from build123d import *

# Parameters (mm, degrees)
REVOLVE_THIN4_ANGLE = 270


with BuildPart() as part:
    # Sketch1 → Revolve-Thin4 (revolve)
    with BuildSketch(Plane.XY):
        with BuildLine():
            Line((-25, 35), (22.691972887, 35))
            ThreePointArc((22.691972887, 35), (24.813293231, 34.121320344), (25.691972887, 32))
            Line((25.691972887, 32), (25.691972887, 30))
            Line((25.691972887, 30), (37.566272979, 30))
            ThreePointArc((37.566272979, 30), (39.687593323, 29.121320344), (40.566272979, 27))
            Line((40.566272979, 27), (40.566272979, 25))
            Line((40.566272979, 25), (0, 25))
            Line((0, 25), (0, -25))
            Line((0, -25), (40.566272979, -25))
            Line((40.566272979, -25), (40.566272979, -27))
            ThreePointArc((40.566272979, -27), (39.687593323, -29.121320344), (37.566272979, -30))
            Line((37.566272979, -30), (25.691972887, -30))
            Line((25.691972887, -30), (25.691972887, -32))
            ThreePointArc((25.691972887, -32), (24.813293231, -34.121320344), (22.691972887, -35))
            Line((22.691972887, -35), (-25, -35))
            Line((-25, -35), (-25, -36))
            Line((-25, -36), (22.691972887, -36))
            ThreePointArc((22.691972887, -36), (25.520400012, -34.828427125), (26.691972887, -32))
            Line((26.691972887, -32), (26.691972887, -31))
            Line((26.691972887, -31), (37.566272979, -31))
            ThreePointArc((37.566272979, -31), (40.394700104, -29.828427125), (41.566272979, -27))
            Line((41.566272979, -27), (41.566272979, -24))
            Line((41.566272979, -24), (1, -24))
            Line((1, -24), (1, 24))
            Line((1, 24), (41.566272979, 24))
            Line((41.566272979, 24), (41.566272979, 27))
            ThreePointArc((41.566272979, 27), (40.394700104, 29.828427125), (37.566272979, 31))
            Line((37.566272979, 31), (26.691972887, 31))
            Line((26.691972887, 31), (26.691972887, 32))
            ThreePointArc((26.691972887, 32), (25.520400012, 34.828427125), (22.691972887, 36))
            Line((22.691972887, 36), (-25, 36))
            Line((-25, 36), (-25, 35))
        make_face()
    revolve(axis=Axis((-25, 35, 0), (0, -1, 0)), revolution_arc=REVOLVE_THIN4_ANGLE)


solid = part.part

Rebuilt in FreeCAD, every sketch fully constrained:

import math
import FreeCAD as App
import Part
import Sketcher

doc = App.newDocument("Part")
body = doc.addObject("PartDesign::Body", "Body")

# Sketch on XY plane
sketch1 = body.newObject("Sketcher::SketchObject", "Sketch")
sketch1.AttachmentSupport = (doc.getObject("XY_Plane"), [""])
sketch1.MapMode = "FlatFace"
sketch1.addGeometry([
    Part.LineSegment(App.Vector(-25, 35, 0), App.Vector(22.691973, 35, 0)),  # 0
    Part.ArcOfCircle(Part.Circle(App.Vector(22.691973, 32, 0), App.Vector(0, 0, 1), 3), math.radians(0), math.radians(90)),  # 1
    Part.LineSegment(App.Vector(25.691973, 32, 0), App.Vector(25.691973, 30, 0)),  # 2
    Part.LineSegment(App.Vector(25.691973, 30, 0), App.Vector(37.566273, 30, 0)),  # 3
    Part.ArcOfCircle(Part.Circle(App.Vector(37.566273, 27, 0), App.Vector(0, 0, 1), 3), math.radians(0), math.radians(90)),  # 4
    Part.LineSegment(App.Vector(40.566273, 27, 0), App.Vector(40.566273, 25, 0)),  # 5
    Part.LineSegment(App.Vector(40.566273, 25, 0), App.Vector(0, 25, 0)),  # 6
    Part.LineSegment(App.Vector(0, 25, 0), App.Vector(0, -25, 0)),  # 7
    Part.LineSegment(App.Vector(0, -25, 0), App.Vector(40.566273, -25, 0)),  # 8
    Part.LineSegment(App.Vector(40.566273, -25, 0), App.Vector(40.566273, -27, 0)),  # 9
    Part.ArcOfCircle(Part.Circle(App.Vector(37.566273, -27, 0), App.Vector(0, 0, 1), 3), math.radians(-90), math.radians(0)),  # 10
    Part.LineSegment(App.Vector(37.566273, -30, 0), App.Vector(25.691973, -30, 0)),  # 11
    Part.LineSegment(App.Vector(25.691973, -30, 0), App.Vector(25.691973, -32, 0)),  # 12
    Part.ArcOfCircle(Part.Circle(App.Vector(22.691973, -32, 0), App.Vector(0, 0, 1), 3), math.radians(-90), math.radians(0)),  # 13
    Part.LineSegment(App.Vector(22.691973, -35, 0), App.Vector(-25, -35, 0)),  # 14
    Part.LineSegment(App.Vector(-25, -35, 0), App.Vector(-25, -36, 0)),  # 15
    Part.LineSegment(App.Vector(-25, -36, 0), App.Vector(22.691973, -36, 0)),  # 16
    Part.ArcOfCircle(Part.Circle(App.Vector(22.691973, -32, 0), App.Vector(0, 0, 1), 4), math.radians(-90), math.radians(0)),  # 17
    Part.LineSegment(App.Vector(26.691973, -32, 0), App.Vector(26.691973, -31, 0)),  # 18
    Part.LineSegment(App.Vector(26.691973, -31, 0), App.Vector(37.566273, -31, 0)),  # 19
    Part.ArcOfCircle(Part.Circle(App.Vector(37.566273, -27, 0), App.Vector(0, 0, 1), 4), math.radians(-90), math.radians(0)),  # 20
    Part.LineSegment(App.Vector(41.566273, -27, 0), App.Vector(41.566273, -24, 0)),  # 21
    Part.LineSegment(App.Vector(41.566273, -24, 0), App.Vector(1, -24, 0)),  # 22
    Part.LineSegment(App.Vector(1, -24, 0), App.Vector(1, 24, 0)),  # 23
    Part.LineSegment(App.Vector(1, 24, 0), App.Vector(41.566273, 24, 0)),  # 24
    Part.LineSegment(App.Vector(41.566273, 24, 0), App.Vector(41.566273, 27, 0)),  # 25
    Part.ArcOfCircle(Part.Circle(App.Vector(37.566273, 27, 0), App.Vector(0, 0, 1), 4), math.radians(0), math.radians(90)),  # 26
    Part.LineSegment(App.Vector(37.566273, 31, 0), App.Vector(26.691973, 31, 0)),  # 27
    Part.LineSegment(App.Vector(26.691973, 31, 0), App.Vector(26.691973, 32, 0)),  # 28
    Part.ArcOfCircle(Part.Circle(App.Vector(22.691973, 32, 0), App.Vector(0, 0, 1), 4), math.radians(0), math.radians(90)),  # 29
    Part.LineSegment(App.Vector(22.691973, 36, 0), App.Vector(-25, 36, 0)),  # 30
    Part.LineSegment(App.Vector(-25, 36, 0), App.Vector(-25, 35, 0)),  # 31
], False)
sketch1.addGeometry(Part.LineSegment(App.Vector(-25, 36, 0), App.Vector(-25, -36, 0)), True)  # axis
sketch1.addConstraint([
    Sketcher.Constraint("Tangent", 0, 2, 1, 2),
    Sketcher.Constraint("Tangent", 1, 1, 2, 1),
    Sketcher.Constraint("Coincident", 2, 2, 3, 1),
    Sketcher.Constraint("Tangent", 3, 2, 4, 2),
    Sketcher.Constraint("Tangent", 4, 1, 5, 1),
    Sketcher.Constraint("Coincident", 5, 2, 6, 1),
    Sketcher.Constraint("Coincident", 6, 2, 7, 1),
    Sketcher.Constraint("Coincident", 7, 2, 8, 1),
    Sketcher.Constraint("Coincident", 8, 2, 9, 1),
    Sketcher.Constraint("Tangent", 9, 2, 10, 2),
    Sketcher.Constraint("Tangent", 10, 1, 11, 1),
    Sketcher.Constraint("Coincident", 11, 2, 12, 1),
    Sketcher.Constraint("Tangent", 12, 2, 13, 2),
    Sketcher.Constraint("Tangent", 13, 1, 14, 1),
    Sketcher.Constraint("Coincident", 14, 2, 15, 1),
    Sketcher.Constraint("Coincident", 15, 2, 16, 1),
    Sketcher.Constraint("Tangent", 16, 2, 17, 1),
    Sketcher.Constraint("Tangent", 17, 2, 18, 1),
    Sketcher.Constraint("Coincident", 18, 2, 19, 1),
    Sketcher.Constraint("Tangent", 19, 2, 20, 1),
    Sketcher.Constraint("Tangent", 20, 2, 21, 1),
    Sketcher.Constraint("Coincident", 21, 2, 22, 1),
    Sketcher.Constraint("Coincident", 22, 2, 23, 1),
    Sketcher.Constraint("Coincident", 23, 2, 24, 1),
    Sketcher.Constraint("Coincident", 24, 2, 25, 1),
    Sketcher.Constraint("Tangent", 25, 2, 26, 1),
    Sketcher.Constraint("Tangent", 26, 2, 27, 1),
    Sketcher.Constraint("Coincident", 27, 2, 28, 1),
    Sketcher.Constraint("Tangent", 28, 2, 29, 1),
    Sketcher.Constraint("Tangent", 29, 2, 30, 1),
    Sketcher.Constraint("Coincident", 30, 2, 31, 1),
    Sketcher.Constraint("Coincident", 31, 2, 0, 1),
    Sketcher.Constraint("Horizontal", 0),
    Sketcher.Constraint("Vertical", 2),
    Sketcher.Constraint("Horizontal", 3),
    Sketcher.Constraint("Vertical", 5),
    Sketcher.Constraint("Horizontal", 6),
    Sketcher.Constraint("Vertical", 7),
    Sketcher.Constraint("Horizontal", 8),
    Sketcher.Constraint("Vertical", 9),
    Sketcher.Constraint("Horizontal", 11),
    Sketcher.Constraint("Vertical", 12),
    Sketcher.Constraint("Horizontal", 14),
    Sketcher.Constraint("Vertical", 15),
    Sketcher.Constraint("Horizontal", 16),
    Sketcher.Constraint("Vertical", 18),
    Sketcher.Constraint("Horizontal", 19),
    Sketcher.Constraint("Vertical", 21),
    Sketcher.Constraint("Horizontal", 22),
    Sketcher.Constraint("Vertical", 23),
    Sketcher.Constraint("Horizontal", 24),
    Sketcher.Constraint("Vertical", 25),
    Sketcher.Constraint("Horizontal", 27),
    Sketcher.Constraint("Vertical", 28),
    Sketcher.Constraint("Horizontal", 30),
    Sketcher.Constraint("Vertical", 31),
    Sketcher.Constraint("Vertical", 32),
    Sketcher.Constraint("Coincident", 17, 3, 13, 3),
    Sketcher.Constraint("Coincident", 20, 3, 10, 3),
    Sketcher.Constraint("Coincident", 26, 3, 4, 3),
    Sketcher.Constraint("Coincident", 29, 3, 1, 3),
    Sketcher.Constraint("Coincident", 32, 1, 30, 2),
    Sketcher.Constraint("Coincident", 32, 2, 15, 2),
    Sketcher.Constraint("Equal", 1, 4),
    Sketcher.Constraint("Equal", 4, 10),
    Sketcher.Constraint("Equal", 10, 13),
    Sketcher.Constraint("Equal", 17, 20),
    Sketcher.Constraint("Equal", 20, 26),
    Sketcher.Constraint("Equal", 26, 29),
    Sketcher.Constraint("Symmetric", 6, 2, 7, 2, -1, 1),
    Sketcher.Constraint("Symmetric", 4, 3, 10, 3, -1),
    Sketcher.Constraint("Symmetric", 1, 3, 13, 3, -1),
    Sketcher.Constraint("Equal", 8, 22),
    Sketcher.Constraint("Equal", 2, 5),
    Sketcher.Constraint("Equal", 15, 18),
    Sketcher.Constraint("Equal", 21, 25),
    Sketcher.Constraint("Radius", 1, 3.0),
    Sketcher.Constraint("Radius", 17, 4.0),
    Sketcher.Constraint("DistanceY", 7, 2, 7, 1, 50.0),
    Sketcher.Constraint("DistanceY", 21, 1, 21, 2, 3.0),
    Sketcher.Constraint("DistanceX", 14, 2, -1, 1, 25.0),
    Sketcher.Constraint("DistanceX", 3, 1, 3, 2, 11.8743),
    Sketcher.Constraint("DistanceX", 0, 1, 0, 2, 47.691973),
])
revolution = body.newObject("PartDesign::Revolution", "Revolution")
revolution.Profile = sketch1
revolution.ReferenceAxis = (sketch1, ["Axis0"])
revolution.Angle = 270

doc.recompute()
